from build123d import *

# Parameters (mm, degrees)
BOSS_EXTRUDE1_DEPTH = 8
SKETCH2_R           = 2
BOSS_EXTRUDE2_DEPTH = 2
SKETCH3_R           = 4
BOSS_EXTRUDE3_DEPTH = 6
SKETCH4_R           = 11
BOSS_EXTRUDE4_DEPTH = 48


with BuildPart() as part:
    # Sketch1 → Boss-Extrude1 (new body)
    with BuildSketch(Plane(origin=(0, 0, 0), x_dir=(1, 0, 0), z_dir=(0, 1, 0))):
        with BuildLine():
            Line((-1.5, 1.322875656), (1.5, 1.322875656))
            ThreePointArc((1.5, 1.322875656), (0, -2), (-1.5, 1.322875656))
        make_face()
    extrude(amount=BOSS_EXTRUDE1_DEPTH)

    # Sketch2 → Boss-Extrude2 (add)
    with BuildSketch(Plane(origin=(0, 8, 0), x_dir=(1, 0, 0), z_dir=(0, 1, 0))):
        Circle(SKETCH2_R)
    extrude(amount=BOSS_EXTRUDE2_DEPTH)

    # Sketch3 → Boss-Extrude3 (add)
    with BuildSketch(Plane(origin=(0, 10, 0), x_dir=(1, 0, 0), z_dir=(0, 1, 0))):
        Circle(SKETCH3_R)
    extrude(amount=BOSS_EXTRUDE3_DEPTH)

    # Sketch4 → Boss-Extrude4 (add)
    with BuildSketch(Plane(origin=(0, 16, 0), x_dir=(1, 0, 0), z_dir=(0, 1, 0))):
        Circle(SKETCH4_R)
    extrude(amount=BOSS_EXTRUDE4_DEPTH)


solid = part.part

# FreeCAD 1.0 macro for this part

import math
import FreeCAD as App
import Part
import Sketcher

doc = App.newDocument("Part")
body = doc.addObject("PartDesign::Body", "Body")

# Sketch on XZ plane
sketch1 = body.newObject("Sketcher::SketchObject", "Sketch")
sketch1.AttachmentSupport = (doc.getObject("XZ_Plane"), [""])
sketch1.MapMode = "FlatFace"
sketch1.addGeometry([
    Part.LineSegment(App.Vector(1.5, -1.3, 0), App.Vector(-1.5, -1.3, 0)),
    Part.ArcOfCircle(Part.Circle(App.Vector(0, 0, 0), App.Vector(0, 0, 1), 2), math.radians(-41), math.radians(221)),
], False)
sketch1.addConstraint([
    Sketcher.Constraint("Coincident", 0, 1, 1, 1),
    Sketcher.Constraint("Coincident", 1, 2, 0, 2),
    Sketcher.Constraint("Horizontal", 0),
    Sketcher.Constraint("Coincident", 1, 3, -1, 1),
    Sketcher.Constraint("Radius", 1, 2.0),
    Sketcher.Constraint("DistanceX", 0, 2, 0, 1, 3.0),
])
pad1 = body.newObject("PartDesign::Pad", "Pad")
pad1.Profile = sketch1
pad1.Length = 8
pad1.Reversed = True

# Sketch on XZ plane
sketch2 = body.newObject("Sketcher::SketchObject", "Sketch001")
sketch2.AttachmentSupport = (doc.getObject("XZ_Plane"), [""])
sketch2.MapMode = "FlatFace"
sketch2.AttachmentOffset = App.Placement(App.Vector(0, 0, -8), App.Rotation())
sketch2.addGeometry(Part.Circle(App.Vector(0, 0, 0), App.Vector(0, 0, 1), 2), False)
sketch2.addConstraint([
    Sketcher.Constraint("Coincident", 0, 3, -1, 1),
    Sketcher.Constraint("Diameter", 0, 4.0),
])
pad2 = body.newObject("PartDesign::Pad", "Pad001")
pad2.Profile = sketch2
pad2.Length = 2
pad2.Reversed = True

# Sketch on XZ plane
sketch3 = body.newObject("Sketcher::SketchObject", "Sketch002")
sketch3.AttachmentSupport = (doc.getObject("XZ_Plane"), [""])
sketch3.MapMode = "FlatFace"
sketch3.AttachmentOffset = App.Placement(App.Vector(0, 0, -10), App.Rotation())
sketch3.addGeometry(Part.Circle(App.Vector(0, 0, 0), App.Vector(0, 0, 1), 4), False)
sketch3.addConstraint([
    Sketcher.Constraint("Coincident", 0, 3, -1, 1),
    Sketcher.Constraint("Diameter", 0, 8.0),
])
pad3 = body.newObject("PartDesign::Pad", "Pad002")
pad3.Profile = sketch3
pad3.Length = 6
pad3.Reversed = True

# Sketch on XZ plane
sketch4 = body.newObject("Sketcher::SketchObject", "Sketch003")
sketch4.AttachmentSupport = (doc.getObject("XZ_Plane"), [""])
sketch4.MapMode = "FlatFace"
sketch4.AttachmentOffset = App.Placement(App.Vector(0, 0, -16), App.Rotation())
sketch4.addGeometry(Part.Circle(App.Vector(0, 0, 0), App.Vector(0, 0, 1), 11), False)
sketch4.addConstraint([
    Sketcher.Constraint("Coincident", 0, 3, -1, 1),
    Sketcher.Constraint("Diameter", 0, 22.0),
])
pad4 = body.newObject("PartDesign::Pad", "Pad003")
pad4.Profile = sketch4
pad4.Length = 48
pad4.Reversed = True

doc.recompute()
